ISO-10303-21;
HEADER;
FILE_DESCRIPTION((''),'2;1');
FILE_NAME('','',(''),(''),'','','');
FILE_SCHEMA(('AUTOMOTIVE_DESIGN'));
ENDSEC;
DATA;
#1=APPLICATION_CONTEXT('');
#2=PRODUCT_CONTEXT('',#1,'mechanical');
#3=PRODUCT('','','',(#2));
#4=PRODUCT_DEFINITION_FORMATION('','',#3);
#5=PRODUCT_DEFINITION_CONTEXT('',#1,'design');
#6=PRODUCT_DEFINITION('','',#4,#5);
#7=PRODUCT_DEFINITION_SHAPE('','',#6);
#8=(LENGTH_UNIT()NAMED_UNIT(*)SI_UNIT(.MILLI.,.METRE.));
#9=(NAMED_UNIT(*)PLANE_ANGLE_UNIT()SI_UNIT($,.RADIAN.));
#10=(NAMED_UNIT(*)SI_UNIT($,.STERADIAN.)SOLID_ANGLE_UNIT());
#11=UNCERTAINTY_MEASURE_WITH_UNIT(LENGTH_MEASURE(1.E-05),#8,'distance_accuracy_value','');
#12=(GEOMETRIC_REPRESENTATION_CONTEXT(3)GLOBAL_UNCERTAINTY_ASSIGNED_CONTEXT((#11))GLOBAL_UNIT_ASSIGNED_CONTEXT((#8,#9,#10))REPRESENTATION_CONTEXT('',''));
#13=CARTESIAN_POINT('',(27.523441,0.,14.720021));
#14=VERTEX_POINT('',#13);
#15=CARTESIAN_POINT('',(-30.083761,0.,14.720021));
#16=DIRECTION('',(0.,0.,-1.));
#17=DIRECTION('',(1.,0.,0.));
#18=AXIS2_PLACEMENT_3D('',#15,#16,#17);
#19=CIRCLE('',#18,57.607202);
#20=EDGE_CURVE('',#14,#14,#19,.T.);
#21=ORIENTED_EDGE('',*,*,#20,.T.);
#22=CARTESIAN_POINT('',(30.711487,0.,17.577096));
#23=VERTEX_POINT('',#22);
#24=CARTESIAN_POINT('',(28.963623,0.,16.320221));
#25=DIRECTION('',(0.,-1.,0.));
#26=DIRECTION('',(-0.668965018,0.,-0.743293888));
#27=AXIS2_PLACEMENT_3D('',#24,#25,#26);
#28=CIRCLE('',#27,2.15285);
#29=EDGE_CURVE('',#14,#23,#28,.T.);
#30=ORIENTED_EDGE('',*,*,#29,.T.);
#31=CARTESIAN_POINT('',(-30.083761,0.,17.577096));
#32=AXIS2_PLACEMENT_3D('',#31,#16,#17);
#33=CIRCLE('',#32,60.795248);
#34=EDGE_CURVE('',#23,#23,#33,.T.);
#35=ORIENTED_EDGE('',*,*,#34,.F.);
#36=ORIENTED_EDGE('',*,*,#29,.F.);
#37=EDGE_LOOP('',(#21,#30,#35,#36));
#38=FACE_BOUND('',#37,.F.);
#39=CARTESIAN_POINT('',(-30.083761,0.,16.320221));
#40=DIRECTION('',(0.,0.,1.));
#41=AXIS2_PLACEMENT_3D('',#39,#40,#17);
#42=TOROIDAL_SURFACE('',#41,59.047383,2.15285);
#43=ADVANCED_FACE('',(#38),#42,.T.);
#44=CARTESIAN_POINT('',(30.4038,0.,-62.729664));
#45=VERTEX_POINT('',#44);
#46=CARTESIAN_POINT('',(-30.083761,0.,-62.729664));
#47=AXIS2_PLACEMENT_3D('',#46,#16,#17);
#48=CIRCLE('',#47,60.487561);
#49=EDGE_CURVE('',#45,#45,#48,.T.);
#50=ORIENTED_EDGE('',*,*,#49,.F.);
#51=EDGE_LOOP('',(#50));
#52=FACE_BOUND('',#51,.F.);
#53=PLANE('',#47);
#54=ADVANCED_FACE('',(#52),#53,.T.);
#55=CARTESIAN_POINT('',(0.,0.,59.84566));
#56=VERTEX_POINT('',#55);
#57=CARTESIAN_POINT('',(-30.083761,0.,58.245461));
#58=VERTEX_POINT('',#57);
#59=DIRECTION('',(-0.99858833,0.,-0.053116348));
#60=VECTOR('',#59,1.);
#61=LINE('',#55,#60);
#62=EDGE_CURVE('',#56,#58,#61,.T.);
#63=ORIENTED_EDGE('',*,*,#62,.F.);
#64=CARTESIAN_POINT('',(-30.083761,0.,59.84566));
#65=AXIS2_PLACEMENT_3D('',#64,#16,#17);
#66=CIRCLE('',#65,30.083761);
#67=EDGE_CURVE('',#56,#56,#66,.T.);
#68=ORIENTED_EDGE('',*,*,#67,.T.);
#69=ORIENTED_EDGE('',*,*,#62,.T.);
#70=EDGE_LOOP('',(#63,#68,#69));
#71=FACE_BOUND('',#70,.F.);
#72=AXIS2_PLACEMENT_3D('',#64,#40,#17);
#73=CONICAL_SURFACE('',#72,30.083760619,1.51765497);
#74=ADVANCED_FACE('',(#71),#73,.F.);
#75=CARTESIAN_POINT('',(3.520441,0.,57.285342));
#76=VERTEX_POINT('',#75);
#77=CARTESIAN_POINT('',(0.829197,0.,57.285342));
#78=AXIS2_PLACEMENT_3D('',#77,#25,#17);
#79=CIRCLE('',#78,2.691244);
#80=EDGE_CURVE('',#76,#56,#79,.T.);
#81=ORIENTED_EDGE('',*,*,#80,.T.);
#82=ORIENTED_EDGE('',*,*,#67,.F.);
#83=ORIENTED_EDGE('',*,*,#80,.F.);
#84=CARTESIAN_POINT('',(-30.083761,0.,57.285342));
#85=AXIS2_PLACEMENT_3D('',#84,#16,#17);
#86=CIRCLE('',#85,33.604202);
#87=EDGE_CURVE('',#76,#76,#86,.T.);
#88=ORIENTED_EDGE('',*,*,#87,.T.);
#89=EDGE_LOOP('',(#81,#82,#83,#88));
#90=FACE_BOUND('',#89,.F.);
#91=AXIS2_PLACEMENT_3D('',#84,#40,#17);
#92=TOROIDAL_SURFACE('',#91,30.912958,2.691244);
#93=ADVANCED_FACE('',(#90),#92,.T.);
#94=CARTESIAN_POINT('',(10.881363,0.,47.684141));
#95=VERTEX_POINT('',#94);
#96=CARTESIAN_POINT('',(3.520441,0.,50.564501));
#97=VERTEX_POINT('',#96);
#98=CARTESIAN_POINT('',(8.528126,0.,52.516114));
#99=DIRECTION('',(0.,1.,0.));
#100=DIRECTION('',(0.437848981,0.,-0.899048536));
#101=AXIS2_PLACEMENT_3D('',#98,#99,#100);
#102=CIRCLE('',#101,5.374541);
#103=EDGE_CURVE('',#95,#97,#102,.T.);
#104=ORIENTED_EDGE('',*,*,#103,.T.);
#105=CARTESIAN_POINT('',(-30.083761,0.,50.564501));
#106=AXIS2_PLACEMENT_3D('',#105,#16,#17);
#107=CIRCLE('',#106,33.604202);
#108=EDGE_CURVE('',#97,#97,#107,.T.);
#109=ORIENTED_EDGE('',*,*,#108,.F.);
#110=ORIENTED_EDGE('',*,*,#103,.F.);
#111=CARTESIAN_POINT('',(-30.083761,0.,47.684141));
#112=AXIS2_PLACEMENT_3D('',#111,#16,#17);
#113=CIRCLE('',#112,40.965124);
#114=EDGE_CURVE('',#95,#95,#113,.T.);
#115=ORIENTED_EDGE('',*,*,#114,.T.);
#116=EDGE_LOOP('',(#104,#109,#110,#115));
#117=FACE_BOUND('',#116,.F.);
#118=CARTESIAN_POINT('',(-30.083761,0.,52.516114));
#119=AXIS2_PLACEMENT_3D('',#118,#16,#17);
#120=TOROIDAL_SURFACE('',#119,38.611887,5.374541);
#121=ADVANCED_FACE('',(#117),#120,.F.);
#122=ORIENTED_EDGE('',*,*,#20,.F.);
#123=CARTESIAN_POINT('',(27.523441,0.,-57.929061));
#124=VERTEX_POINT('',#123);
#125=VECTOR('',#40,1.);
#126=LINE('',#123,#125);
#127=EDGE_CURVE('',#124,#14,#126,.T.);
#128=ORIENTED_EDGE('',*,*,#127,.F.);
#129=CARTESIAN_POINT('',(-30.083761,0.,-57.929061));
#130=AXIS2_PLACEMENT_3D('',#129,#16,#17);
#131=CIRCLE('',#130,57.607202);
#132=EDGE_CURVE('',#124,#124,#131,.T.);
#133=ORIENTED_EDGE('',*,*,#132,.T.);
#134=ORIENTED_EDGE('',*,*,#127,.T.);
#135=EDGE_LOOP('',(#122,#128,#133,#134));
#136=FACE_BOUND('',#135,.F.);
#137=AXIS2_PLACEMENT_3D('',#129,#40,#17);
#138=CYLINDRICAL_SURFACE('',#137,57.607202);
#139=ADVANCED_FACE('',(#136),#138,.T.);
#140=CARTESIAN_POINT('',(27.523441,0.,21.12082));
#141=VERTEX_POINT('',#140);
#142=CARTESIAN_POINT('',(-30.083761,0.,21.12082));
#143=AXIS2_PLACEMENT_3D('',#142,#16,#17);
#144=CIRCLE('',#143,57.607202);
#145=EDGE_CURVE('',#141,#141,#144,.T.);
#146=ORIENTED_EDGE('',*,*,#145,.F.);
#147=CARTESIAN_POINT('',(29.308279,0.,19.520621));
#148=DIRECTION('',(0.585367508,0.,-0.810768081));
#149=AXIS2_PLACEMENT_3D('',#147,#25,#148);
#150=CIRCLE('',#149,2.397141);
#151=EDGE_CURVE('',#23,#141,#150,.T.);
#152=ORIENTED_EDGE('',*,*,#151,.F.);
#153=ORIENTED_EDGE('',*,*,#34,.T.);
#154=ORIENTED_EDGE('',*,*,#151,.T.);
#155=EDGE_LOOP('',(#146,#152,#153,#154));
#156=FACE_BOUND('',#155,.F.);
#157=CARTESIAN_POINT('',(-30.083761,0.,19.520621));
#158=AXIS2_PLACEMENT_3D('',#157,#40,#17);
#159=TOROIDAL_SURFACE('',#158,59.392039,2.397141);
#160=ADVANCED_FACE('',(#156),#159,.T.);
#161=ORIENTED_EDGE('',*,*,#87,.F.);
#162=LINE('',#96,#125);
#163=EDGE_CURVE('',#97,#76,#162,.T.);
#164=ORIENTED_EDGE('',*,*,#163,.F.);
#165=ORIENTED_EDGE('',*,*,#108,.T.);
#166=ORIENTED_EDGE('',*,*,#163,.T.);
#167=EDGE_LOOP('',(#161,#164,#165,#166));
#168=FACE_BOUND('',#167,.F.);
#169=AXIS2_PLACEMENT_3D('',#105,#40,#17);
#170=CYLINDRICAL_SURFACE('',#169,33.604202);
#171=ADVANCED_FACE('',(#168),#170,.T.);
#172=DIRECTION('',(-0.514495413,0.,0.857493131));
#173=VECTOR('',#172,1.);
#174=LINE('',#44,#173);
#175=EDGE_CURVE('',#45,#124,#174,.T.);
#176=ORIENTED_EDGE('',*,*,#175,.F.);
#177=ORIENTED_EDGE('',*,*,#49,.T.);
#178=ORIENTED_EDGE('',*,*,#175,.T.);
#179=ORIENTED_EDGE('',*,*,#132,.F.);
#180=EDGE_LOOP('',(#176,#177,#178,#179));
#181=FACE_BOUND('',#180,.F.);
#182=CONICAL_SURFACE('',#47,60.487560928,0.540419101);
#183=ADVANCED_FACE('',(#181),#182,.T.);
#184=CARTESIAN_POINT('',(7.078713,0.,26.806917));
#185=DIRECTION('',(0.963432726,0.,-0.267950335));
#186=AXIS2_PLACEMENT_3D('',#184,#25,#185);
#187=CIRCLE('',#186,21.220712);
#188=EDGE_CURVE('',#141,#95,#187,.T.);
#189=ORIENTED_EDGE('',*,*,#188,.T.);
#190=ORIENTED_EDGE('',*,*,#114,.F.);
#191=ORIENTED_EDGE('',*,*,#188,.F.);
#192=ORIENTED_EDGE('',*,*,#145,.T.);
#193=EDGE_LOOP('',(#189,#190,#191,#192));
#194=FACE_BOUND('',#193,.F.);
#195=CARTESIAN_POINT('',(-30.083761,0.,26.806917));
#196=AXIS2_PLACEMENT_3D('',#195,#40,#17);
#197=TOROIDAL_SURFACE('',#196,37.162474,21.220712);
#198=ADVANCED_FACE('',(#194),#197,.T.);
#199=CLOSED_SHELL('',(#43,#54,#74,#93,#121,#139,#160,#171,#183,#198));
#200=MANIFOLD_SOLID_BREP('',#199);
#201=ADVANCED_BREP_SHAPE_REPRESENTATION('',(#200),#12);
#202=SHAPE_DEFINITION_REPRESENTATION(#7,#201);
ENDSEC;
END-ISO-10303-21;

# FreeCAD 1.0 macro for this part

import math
import FreeCAD as App
import Part
import Sketcher
from FreeCAD import Vector

doc = App.newDocument("Part")
body = doc.addObject("PartDesign::Body", "Body")

# Sketch on XZ plane
sketch1 = doc.addObject("Sketcher::SketchObject", "Sketch")
body.addObject(sketch1)
sketch1.AttachmentSupport = (doc.XZ_Plane, [""])
sketch1.MapMode = "FlatFace"
sketch1.addGeometry([
    Part.LineSegment(Vector(3.520441, 50.564501, 0), Vector(3.520441, 57.285342, 0)),  # 0
    Part.ArcOfCircle(Part.Circle(Vector(0.829197, 57.285342, 0), Vector(0, 0, 1), 2.691244), math.radians(0), math.radians(107.945329)),  # 1
    Part.LineSegment(Vector(0, 59.84566, 0), Vector(-30.083761, 58.245461, 0)),  # 2
    Part.LineSegment(Vector(-30.083761, 58.245461, 0), Vector(-30.083761, -62.729664, 0)),  # 3
    Part.LineSegment(Vector(-30.083761, -62.729664, 0), Vector(30.4038, -62.729664, 0)),  # 4
    Part.LineSegment(Vector(30.4038, -62.729664, 0), Vector(27.523441, -57.929061, 0)),  # 5
    Part.LineSegment(Vector(27.523441, -57.929061, 0), Vector(27.523441, 14.720021, 0)),  # 6
    Part.ArcOfCircle(Part.Circle(Vector(28.963623, 16.320221, 0), Vector(0, 0, 1), 2.15285), math.radians(-131.987235), math.radians(35.719596)),  # 7
    Part.ArcOfCircle(Part.Circle(Vector(29.308279, 19.520621, 0), Vector(0, 0, 1), 2.397141), math.radians(-54.171043), math.radians(138.122126)),  # 8
    Part.ArcOfCircle(Part.Circle(Vector(7.078713, 26.806917, 0), Vector(0, 0, 1), 21.220712), math.radians(-15.542336), math.radians(79.677112)),  # 9
    Part.ArcOfCircle(Part.Circle(Vector(8.528126, 52.516114, 0), Vector(0, 0, 1), 5.374541), math.radians(-158.707965), math.radians(-64.033282)),  # 10
], False)
sketch1.addGeometry(Part.LineSegment(Vector(-30.083761, 59.84566, 0), Vector(-30.083761, -62.729664, 0)), True)  # axis
sketch1.addConstraint([
    Sketcher.Constraint("Tangent", 0, 2, 1, 1),
    Sketcher.Constraint("Coincident", 1, 2, 2, 1),
    Sketcher.Constraint("Coincident", 2, 2, 3, 1),
    Sketcher.Constraint("Coincident", 3, 2, 4, 1),
    Sketcher.Constraint("Coincident", 4, 2, 5, 1),
    Sketcher.Constraint("Coincident", 5, 2, 6, 1),
    Sketcher.Constraint("Coincident", 6, 2, 7, 1),
    Sketcher.Constraint("Coincident", 7, 2, 8, 1),
    Sketcher.Constraint("Coincident", 8, 2, 9, 1),
    Sketcher.Constraint("Coincident", 9, 2, 10, 2),
    Sketcher.Constraint("Coincident", 10, 1, 0, 1),
    Sketcher.Constraint("Vertical", 0),
    Sketcher.Constraint("Vertical", 3),
    Sketcher.Constraint("Horizontal", 4),
    Sketcher.Constraint("Vertical", 6),
    Sketcher.Constraint("Vertical", 11),
    Sketcher.Constraint("Coincident", 11, 2, 3, 2),
    Sketcher.Constraint("PointOnObject", 1, 2, -2),
    Sketcher.Constraint("Horizontal", 1, 2, 11, 1),
    Sketcher.Constraint("Vertical", 6, 2, 8, 2),
    Sketcher.Constraint("Radius", 7, 2.15285),
    Sketcher.Constraint("Radius", 8, 2.397141),
    Sketcher.Constraint("Radius", 9, 21.220712),
    Sketcher.Constraint("Radius", 10, 5.374541),
    Sketcher.Constraint("Radius", 1, 2.691244),
    Sketcher.Constraint("DistanceX", 0, 2, 6, 2, 24.003),
    Sketcher.Constraint("DistanceX", 4, 1, 4, 2, 60.487561),
    Sketcher.Constraint("DistanceY", 0, 1, 0, 2, 6.720841),
    Sketcher.Constraint("DistanceX", -1, 1, 4, 2, 30.4038),
    Sketcher.Constraint("DistanceY", -1, 1, 10, 1, 50.564501),
    Sketcher.Constraint("DistanceY", 7, 3, 8, 3, 3.2004),
    Sketcher.Constraint("DistanceY", 2, 2, 1, 2, 1.600198),
    Sketcher.Constraint("DistanceX", 3, 2, 5, 2, 57.607202),
    Sketcher.Constraint("DistanceY", 6, 2, 7, 3, 1.6002),
    Sketcher.Constraint("DistanceY", 8, 3, 8, 2, 1.600199),
    Sketcher.Constraint("DistanceY", 9, 2, 0, 2, 9.601202),
    Sketcher.Constraint("DistanceY", 3, 2, 3, 1, 120.975126),
    Sketcher.Constraint("DistanceY", 6, 1, 6, 2, 72.649082),
    Sketcher.Constraint("DistanceY", -1, 1, 7, 3, 16.320221),
    Sketcher.Constraint("DistanceX", 9, 3, 7, 3, 21.88491),
])
revolution = doc.addObject("PartDesign::Revolution", "Revolution")
body.addObject(revolution)
revolution.Profile = sketch1
revolution.ReferenceAxis = (sketch1, ["Axis0"])
revolution.Angle = 360

doc.recompute()
